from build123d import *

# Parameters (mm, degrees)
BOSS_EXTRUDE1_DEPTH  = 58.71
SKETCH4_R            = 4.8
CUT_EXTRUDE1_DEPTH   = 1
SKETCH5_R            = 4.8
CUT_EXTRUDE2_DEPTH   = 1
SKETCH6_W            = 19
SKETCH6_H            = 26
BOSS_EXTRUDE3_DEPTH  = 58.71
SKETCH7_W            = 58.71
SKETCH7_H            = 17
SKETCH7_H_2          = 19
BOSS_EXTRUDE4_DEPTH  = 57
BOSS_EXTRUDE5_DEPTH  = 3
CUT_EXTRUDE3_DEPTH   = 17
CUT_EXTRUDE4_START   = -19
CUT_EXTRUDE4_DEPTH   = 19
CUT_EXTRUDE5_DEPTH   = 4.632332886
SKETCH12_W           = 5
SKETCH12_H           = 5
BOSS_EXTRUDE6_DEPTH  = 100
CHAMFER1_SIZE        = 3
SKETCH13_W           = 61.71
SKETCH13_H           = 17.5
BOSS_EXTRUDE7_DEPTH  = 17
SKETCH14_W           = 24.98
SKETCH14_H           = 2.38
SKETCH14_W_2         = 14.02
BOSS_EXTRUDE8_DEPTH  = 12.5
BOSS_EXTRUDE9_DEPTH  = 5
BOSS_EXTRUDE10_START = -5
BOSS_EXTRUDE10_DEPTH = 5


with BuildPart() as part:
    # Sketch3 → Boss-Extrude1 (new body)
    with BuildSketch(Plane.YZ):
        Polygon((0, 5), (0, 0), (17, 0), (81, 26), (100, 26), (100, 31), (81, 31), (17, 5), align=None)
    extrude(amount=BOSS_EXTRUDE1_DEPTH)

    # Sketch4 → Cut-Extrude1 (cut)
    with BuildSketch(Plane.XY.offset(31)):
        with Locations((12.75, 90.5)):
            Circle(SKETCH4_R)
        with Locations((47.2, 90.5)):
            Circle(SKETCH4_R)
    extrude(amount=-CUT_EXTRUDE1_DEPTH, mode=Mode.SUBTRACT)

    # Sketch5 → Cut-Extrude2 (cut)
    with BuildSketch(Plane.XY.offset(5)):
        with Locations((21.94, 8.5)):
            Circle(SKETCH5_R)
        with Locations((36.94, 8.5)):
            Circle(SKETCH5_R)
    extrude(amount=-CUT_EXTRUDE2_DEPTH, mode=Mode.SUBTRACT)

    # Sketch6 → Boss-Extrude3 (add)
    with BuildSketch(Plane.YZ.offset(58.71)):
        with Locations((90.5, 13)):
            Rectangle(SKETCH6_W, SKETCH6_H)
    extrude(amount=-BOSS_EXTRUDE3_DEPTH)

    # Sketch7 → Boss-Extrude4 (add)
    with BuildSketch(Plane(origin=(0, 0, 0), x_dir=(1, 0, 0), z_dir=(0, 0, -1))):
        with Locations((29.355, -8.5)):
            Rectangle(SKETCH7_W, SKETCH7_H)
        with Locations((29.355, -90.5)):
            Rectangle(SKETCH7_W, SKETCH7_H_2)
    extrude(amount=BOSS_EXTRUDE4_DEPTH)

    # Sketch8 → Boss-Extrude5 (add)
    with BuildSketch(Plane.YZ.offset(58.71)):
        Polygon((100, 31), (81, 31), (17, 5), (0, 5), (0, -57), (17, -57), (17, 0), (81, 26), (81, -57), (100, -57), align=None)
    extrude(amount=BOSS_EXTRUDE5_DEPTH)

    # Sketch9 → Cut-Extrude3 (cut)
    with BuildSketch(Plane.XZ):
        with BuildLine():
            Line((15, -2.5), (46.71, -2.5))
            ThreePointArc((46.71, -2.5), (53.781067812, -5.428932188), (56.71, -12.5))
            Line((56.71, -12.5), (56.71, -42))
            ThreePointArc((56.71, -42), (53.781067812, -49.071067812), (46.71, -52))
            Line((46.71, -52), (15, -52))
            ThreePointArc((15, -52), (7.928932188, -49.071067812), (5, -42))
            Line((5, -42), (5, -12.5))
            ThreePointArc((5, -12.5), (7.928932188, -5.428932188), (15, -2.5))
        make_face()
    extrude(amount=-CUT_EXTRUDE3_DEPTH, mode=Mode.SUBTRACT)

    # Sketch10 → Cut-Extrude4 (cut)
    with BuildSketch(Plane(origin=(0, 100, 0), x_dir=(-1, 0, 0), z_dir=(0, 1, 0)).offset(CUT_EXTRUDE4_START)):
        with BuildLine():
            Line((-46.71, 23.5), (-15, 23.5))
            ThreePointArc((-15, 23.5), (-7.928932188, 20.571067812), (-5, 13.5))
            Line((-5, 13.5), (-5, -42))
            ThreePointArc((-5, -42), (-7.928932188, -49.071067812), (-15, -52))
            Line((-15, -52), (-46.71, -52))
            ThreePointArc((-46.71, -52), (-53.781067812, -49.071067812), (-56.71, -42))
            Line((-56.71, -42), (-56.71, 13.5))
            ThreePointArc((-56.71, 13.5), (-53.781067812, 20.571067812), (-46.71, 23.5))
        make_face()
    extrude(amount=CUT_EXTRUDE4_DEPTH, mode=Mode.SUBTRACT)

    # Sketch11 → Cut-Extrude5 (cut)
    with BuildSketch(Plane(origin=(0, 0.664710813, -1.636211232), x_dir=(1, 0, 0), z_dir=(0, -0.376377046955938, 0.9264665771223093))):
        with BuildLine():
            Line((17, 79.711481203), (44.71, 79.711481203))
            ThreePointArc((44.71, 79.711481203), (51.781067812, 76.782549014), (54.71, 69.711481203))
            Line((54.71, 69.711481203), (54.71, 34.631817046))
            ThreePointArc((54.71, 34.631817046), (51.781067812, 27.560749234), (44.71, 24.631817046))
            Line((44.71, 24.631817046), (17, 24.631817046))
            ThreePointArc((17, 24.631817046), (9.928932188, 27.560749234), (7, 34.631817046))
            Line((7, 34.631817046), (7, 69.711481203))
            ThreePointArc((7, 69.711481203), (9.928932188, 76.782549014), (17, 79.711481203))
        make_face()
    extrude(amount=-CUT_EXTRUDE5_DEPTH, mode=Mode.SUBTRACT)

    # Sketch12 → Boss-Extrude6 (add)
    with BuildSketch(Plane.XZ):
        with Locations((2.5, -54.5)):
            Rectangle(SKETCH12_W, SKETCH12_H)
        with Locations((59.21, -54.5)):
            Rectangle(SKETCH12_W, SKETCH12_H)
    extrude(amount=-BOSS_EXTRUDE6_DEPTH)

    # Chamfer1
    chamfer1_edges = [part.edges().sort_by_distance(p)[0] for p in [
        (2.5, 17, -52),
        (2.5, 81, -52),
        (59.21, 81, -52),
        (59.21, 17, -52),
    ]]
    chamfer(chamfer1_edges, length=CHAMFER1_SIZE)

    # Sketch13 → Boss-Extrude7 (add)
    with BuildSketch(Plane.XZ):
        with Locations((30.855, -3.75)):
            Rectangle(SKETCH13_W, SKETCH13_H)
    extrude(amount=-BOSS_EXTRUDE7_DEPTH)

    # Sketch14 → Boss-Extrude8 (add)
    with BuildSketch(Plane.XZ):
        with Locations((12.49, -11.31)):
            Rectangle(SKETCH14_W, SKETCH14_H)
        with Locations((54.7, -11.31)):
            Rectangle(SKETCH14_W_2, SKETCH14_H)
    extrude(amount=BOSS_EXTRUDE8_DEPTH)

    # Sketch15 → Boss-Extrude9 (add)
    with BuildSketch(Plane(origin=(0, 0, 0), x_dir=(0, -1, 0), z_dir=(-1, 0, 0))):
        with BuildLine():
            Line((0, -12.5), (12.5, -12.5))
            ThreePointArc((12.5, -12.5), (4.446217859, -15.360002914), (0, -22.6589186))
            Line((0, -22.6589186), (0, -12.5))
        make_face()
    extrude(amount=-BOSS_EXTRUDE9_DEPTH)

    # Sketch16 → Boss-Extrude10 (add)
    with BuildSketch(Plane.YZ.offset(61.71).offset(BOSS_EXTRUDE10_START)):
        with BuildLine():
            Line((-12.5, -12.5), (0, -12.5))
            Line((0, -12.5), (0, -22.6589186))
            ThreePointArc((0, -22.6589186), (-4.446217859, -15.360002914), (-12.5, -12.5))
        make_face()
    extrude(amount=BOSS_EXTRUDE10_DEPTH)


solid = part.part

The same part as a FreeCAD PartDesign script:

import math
import FreeCAD as App
import Part
import Sketcher

V = App.Vector


def edges_at(feature, points):
    """Names of the edges that pass closest to the given points."""
    edges = feature.Shape.Edges
    near = lambda p: min(range(len(edges)), key=lambda i: edges[i].distToShape(Part.Vertex(*p))[0])
    return sorted({f"Edge{near(p) + 1}" for p in points})

doc = App.newDocument("Part")
body = doc.addObject("PartDesign::Body", "Body")

sketch1 = body.newObject("Sketcher::SketchObject", "Sketch")
sketch1.AttachmentSupport = (doc.getObject("YZ_Plane"), [""])
sketch1.MapMode = "FlatFace"
sketch1.addGeometry([
    Part.LineSegment(V(0, 5, 0), V(0, 0, 0)),
    Part.LineSegment(V(0, 0, 0), V(17, 0, 0)),
    Part.LineSegment(V(17, 0, 0), V(81, 26, 0)),
    Part.LineSegment(V(81, 26, 0), V(100, 26, 0)),
    Part.LineSegment(V(100, 26, 0), V(100, 31, 0)),
    Part.LineSegment(V(100, 31, 0), V(81, 31, 0)),
    Part.LineSegment(V(81, 31, 0), V(17, 5, 0)),
    Part.LineSegment(V(17, 5, 0), V(0, 5, 0)),
], False)
sketch1.addConstraint([
    Sketcher.Constraint("Coincident", 0, 2, 1, 1),
    Sketcher.Constraint("Coincident", 1, 2, 2, 1),
    Sketcher.Constraint("Coincident", 2, 2, 3, 1),
    Sketcher.Constraint("Coincident", 3, 2, 4, 1),
    Sketcher.Constraint("Coincident", 4, 2, 5, 1),
    Sketcher.Constraint("Coincident", 5, 2, 6, 1),
    Sketcher.Constraint("Coincident", 6, 2, 7, 1),
    Sketcher.Constraint("Coincident", 7, 2, 0, 1),
    Sketcher.Constraint("Vertical", 0),
    Sketcher.Constraint("Horizontal", 1),
    Sketcher.Constraint("Horizontal", 3),
    Sketcher.Constraint("Vertical", 4),
    Sketcher.Constraint("Horizontal", 5),
    Sketcher.Constraint("Horizontal", 7),
    Sketcher.Constraint("Coincident", 0, 2, -1, 1),
    Sketcher.Constraint("Parallel", 2, 6),
    Sketcher.Constraint("Vertical", 2, 2, 5, 2),
    Sketcher.Constraint("Vertical", 1, 2, 6, 2),
    Sketcher.Constraint("DistanceX", 1, 1, 1, 2, 17.0),
    Sketcher.Constraint("DistanceX", 3, 1, 3, 2, 19.0),
    Sketcher.Constraint("DistanceY", 0, 2, 0, 1, 5.0),
    Sketcher.Constraint("DistanceX", -1, 1, 2, 2, 81.0),
    Sketcher.Constraint("DistanceY", -1, 1, 2, 2, 26.0),
])
pad1 = body.newObject("PartDesign::Pad", "Pad")
pad1.Profile = sketch1
pad1.Length = 58.71

sketch2 = body.newObject("Sketcher::SketchObject", "Sketch001")
sketch2.AttachmentSupport = (doc.getObject("XY_Plane"), [""])
sketch2.MapMode = "FlatFace"
sketch2.AttachmentOffset = App.Placement(V(0, 0, 31), App.Rotation())
sketch2.addGeometry([
    Part.Circle(V(12.8, 90.5, 0), V(0, 0, 1), 4.8),
    Part.Circle(V(47.2, 90.5, 0), V(0, 0, 1), 4.8),
], False)
sketch2.addConstraint([
    Sketcher.Constraint("Equal", 0, 1),
    Sketcher.Constraint("Horizontal", 0, 3, 1, 3),
    Sketcher.Constraint("Diameter", 0, 9.6),
    Sketcher.Constraint("DistanceY", -1, 1, 0, 3, 90.5),
    Sketcher.Constraint("DistanceX", -1, 1, 1, 3, 47.2),
    Sketcher.Constraint("DistanceX", -1, 1, 0, 3, 12.75),
])
pocket1 = body.newObject("PartDesign::Pocket", "Pocket")
pocket1.Profile = sketch2
pocket1.Length = 1

sketch3 = body.newObject("Sketcher::SketchObject", "Sketch002")
sketch3.AttachmentSupport = (doc.getObject("XY_Plane"), [""])
sketch3.MapMode = "FlatFace"
sketch3.AttachmentOffset = App.Placement(V(0, 0, 5), App.Rotation())
sketch3.addGeometry([
    Part.Circle(V(21.9, 8.5, 0), V(0, 0, 1), 4.8),
    Part.Circle(V(36.9, 8.5, 0), V(0, 0, 1), 4.8),
], False)
sketch3.addConstraint([
    Sketcher.Constraint("Equal", 0, 1),
    Sketcher.Constraint("Horizontal", 0, 3, 1, 3),
    Sketcher.Constraint("Diameter", 0, 9.6),
    Sketcher.Constraint("DistanceX", 0, 3, 1, 3, 15.0),
    Sketcher.Constraint("DistanceY", -1, 1, 0, 3, 8.5),
    Sketcher.Constraint("DistanceX", -1, 1, 0, 3, 21.94),
])
pocket2 = body.newObject("PartDesign::Pocket", "Pocket001")
pocket2.Profile = sketch3
pocket2.Length = 1

sketch4 = body.newObject("Sketcher::SketchObject", "Sketch003")
sketch4.AttachmentSupport = (doc.getObject("YZ_Plane"), [""])
sketch4.MapMode = "FlatFace"
sketch4.AttachmentOffset = App.Placement(V(0, 0, 58.71), App.Rotation())
sketch4.addGeometry([
    Part.LineSegment(V(81, 26, 0), V(81, 0, 0)),
    Part.LineSegment(V(81, 0, 0), V(100, 0, 0)),
    Part.LineSegment(V(100, 0, 0), V(100, 26, 0)),
    Part.LineSegment(V(100, 26, 0), V(81, 26, 0)),
], False)
sketch4.addConstraint([
    Sketcher.Constraint("Coincident", 0, 2, 1, 1),
    Sketcher.Constraint("Coincident", 1, 2, 2, 1),
    Sketcher.Constraint("Coincident", 2, 2, 3, 1),
    Sketcher.Constraint("Coincident", 3, 2, 0, 1),
    Sketcher.Constraint("Vertical", 0),
    Sketcher.Constraint("Horizontal", 1),
    Sketcher.Constraint("Vertical", 2),
    Sketcher.Constraint("Horizontal", 3),
    Sketcher.Constraint("PointOnObject", 0, 2, -1),
    Sketcher.Constraint("DistanceX", 1, 1, 1, 2, 19.0),
    Sketcher.Constraint("DistanceY", 0, 2, 0, 1, 26.0),
    Sketcher.Constraint("DistanceX", -1, 1, 0, 2, 81.0),
])
pad2 = body.newObject("PartDesign::Pad", "Pad001")
pad2.Profile = sketch4
pad2.Length = 58.71
pad2.Reversed = True

sketch5 = body.newObject("Sketcher::SketchObject", "Sketch004")
sketch5.AttachmentSupport = (doc.getObject("XY_Plane"), [""])
sketch5.MapMode = "FlatFace"
sketch5.addGeometry([
    Part.LineSegment(V(0, 0, 0), V(0, 17, 0)),
    Part.LineSegment(V(0, 17, 0), V(59, 17, 0)),
    Part.LineSegment(V(59, 17, 0), V(59, 0, 0)),
    Part.LineSegment(V(59, 0, 0), V(0, 0, 0)),
    Part.LineSegment(V(0, 81, 0), V(0, 100, 0)),
    Part.LineSegment(V(0, 100, 0), V(59, 100, 0)),
    Part.LineSegment(V(59, 100, 0), V(59, 81, 0)),
    Part.LineSegment(V(59, 81, 0), V(0, 81, 0)),
], False)
sketch5.addConstraint([
    Sketcher.Constraint("Coincident", 0, 2, 1, 1),
    Sketcher.Constraint("Coincident", 1, 2, 2, 1),
    Sketcher.Constraint("Coincident", 2, 2, 3, 1),
    Sketcher.Constraint("Coincident", 3, 2, 0, 1),
    Sketcher.Constraint("Coincident", 4, 2, 5, 1),
    Sketcher.Constraint("Coincident", 5, 2, 6, 1),
    Sketcher.Constraint("Coincident", 6, 2, 7, 1),
    Sketcher.Constraint("Coincident", 7, 2, 4, 1),
    Sketcher.Constraint("Vertical", 0),
    Sketcher.Constraint("Horizontal", 1),
    Sketcher.Constraint("Vertical", 2),
    Sketcher.Constraint("Horizontal", 3),
    Sketcher.Constraint("Vertical", 4),
    Sketcher.Constraint("Horizontal", 5),
    Sketcher.Constraint("Vertical", 6),
    Sketcher.Constraint("Horizontal", 7),
    Sketcher.Constraint("Coincident", 3, 2, -1, 1),
    Sketcher.Constraint("PointOnObject", 4, 2, -2),
    Sketcher.Constraint("Vertical", 2, 2, 5, 2),
    Sketcher.Constraint("DistanceY", 0, 1, 0, 2, 17.0),
    Sketcher.Constraint("DistanceY", 4, 1, 4, 2, 19.0),
    Sketcher.Constraint("DistanceY", -1, 1, 4, 2, 100.0),
    Sketcher.Constraint("DistanceX", 1, 1, 1, 2, 58.71),
])
pad3 = body.newObject("PartDesign::Pad", "Pad002")
pad3.Profile = sketch5
pad3.Length = 57
pad3.Reversed = True

sketch6 = body.newObject("Sketcher::SketchObject", "Sketch005")
sketch6.AttachmentSupport = (doc.getObject("YZ_Plane"), [""])
sketch6.MapMode = "FlatFace"
sketch6.AttachmentOffset = App.Placement(V(0, 0, 58.71), App.Rotation())
sketch6.addGeometry([
    Part.LineSegment(V(100, 31, 0), V(81, 31, 0)),
    Part.LineSegment(V(81, 31, 0), V(17, 5, 0)),
    Part.LineSegment(V(17, 5, 0), V(0, 5, 0)),
    Part.LineSegment(V(0, 5, 0), V(0, -57, 0)),
    Part.LineSegment(V(0, -57, 0), V(17, -57, 0)),
    Part.LineSegment(V(17, -57, 0), V(17, 0, 0)),
    Part.LineSegment(V(17, 0, 0), V(81, 26, 0)),
    Part.LineSegment(V(81, 26, 0), V(81, -57, 0)),
    Part.LineSegment(V(81, -57, 0), V(100, -57, 0)),
    Part.LineSegment(V(100, -57, 0), V(100, 31, 0)),
], False)
sketch6.addConstraint([
    Sketcher.Constraint("Coincident", 0, 2, 1, 1),
    Sketcher.Constraint("Coincident", 1, 2, 2, 1),
    Sketcher.Constraint("Coincident", 2, 2, 3, 1),
    Sketcher.Constraint("Coincident", 3, 2, 4, 1),
    Sketcher.Constraint("Coincident", 4, 2, 5, 1),
    Sketcher.Constraint("Coincident", 5, 2, 6, 1),
    Sketcher.Constraint("Coincident", 6, 2, 7, 1),
    Sketcher.Constraint("Coincident", 7, 2, 8, 1),
    Sketcher.Constraint("Coincident", 8, 2, 9, 1),
    Sketcher.Constraint("Coincident", 9, 2, 0, 1),
    Sketcher.Constraint("Horizontal", 0),
    Sketcher.Constraint("Horizontal", 2),
    Sketcher.Constraint("Vertical", 3),
    Sketcher.Constraint("Horizontal", 4),
    Sketcher.Constraint("Vertical", 5),
    Sketcher.Constraint("Vertical", 7),
    Sketcher.Constraint("Horizontal", 8),
    Sketcher.Constraint("Vertical", 9),
    Sketcher.Constraint("PointOnObject", 2, 2, -2),
    Sketcher.Constraint("PointOnObject", 5, 2, -1),
    Sketcher.Constraint("Parallel", 1, 6),
    Sketcher.Constraint("Horizontal", 4, 2, 7, 2),
    Sketcher.Constraint("Vertical", 1, 2, 4, 2),
    Sketcher.Constraint("Vertical", 0, 2, 6, 2),
    Sketcher.Constraint("DistanceX", 0, 2, 0, 1, 19.0),
    Sketcher.Constraint("DistanceX", 2, 2, 2, 1, 17.0),
    Sketcher.Constraint("DistanceY", 3, 2, 3, 1, 62.0),
    Sketcher.Constraint("DistanceY", 5, 1, 5, 2, 57.0),
    Sketcher.Constraint("DistanceY", 7, 2, 7, 1, 83.0),
    Sketcher.Constraint("DistanceX", -1, 1, 0, 2, 81.0),
])
pad4 = body.newObject("PartDesign::Pad", "Pad003")
pad4.Profile = sketch6
pad4.Length = 3

sketch7 = body.newObject("Sketcher::SketchObject", "Sketch006")
sketch7.AttachmentSupport = (doc.getObject("XZ_Plane"), [""])
sketch7.MapMode = "FlatFace"
sketch7.addGeometry([
    Part.LineSegment(V(47, -2, 0), V(15, -2, 0)),
    Part.ArcOfCircle(Part.Circle(V(15, -12, 0), V(0, 0, 1), 10), math.radians(90), math.radians(180)),
    Part.LineSegment(V(5, -12, 0), V(5, -42, 0)),
    Part.ArcOfCircle(Part.Circle(V(15, -42, 0), V(0, 0, 1), 10), math.radians(180), math.radians(270)),
    Part.LineSegment(V(15, -52, 0), V(47, -52, 0)),
    Part.ArcOfCircle(Part.Circle(V(47, -42, 0), V(0, 0, 1), 10), math.radians(-90), math.radians(0)),
    Part.LineSegment(V(57, -42, 0), V(57, -12, 0)),
    Part.ArcOfCircle(Part.Circle(V(47, -12, 0), V(0, 0, 1), 10), math.radians(0), math.radians(90)),
], False)
sketch7.addConstraint([
    Sketcher.Constraint("Tangent", 0, 2, 1, 1),
    Sketcher.Constraint("Tangent", 1, 2, 2, 1),
    Sketcher.Constraint("Tangent", 2, 2, 3, 1),
    Sketcher.Constraint("Tangent", 3, 2, 4, 1),
    Sketcher.Constraint("Tangent", 4, 2, 5, 1),
    Sketcher.Constraint("Tangent", 5, 2, 6, 1),
    Sketcher.Constraint("Tangent", 6, 2, 7, 1),
    Sketcher.Constraint("Tangent", 7, 2, 0, 1),
    Sketcher.Constraint("Horizontal", 0),
    Sketcher.Constraint("Vertical", 2),
    Sketcher.Constraint("Horizontal", 4),
    Sketcher.Constraint("Vertical", 6),
    Sketcher.Constraint("Equal", 1, 3),
    Sketcher.Constraint("Equal", 3, 5),
    Sketcher.Constraint("Equal", 5, 7),
    Sketcher.Constraint("Radius", 1, 10.0),
    Sketcher.Constraint("DistanceY", 2, 2, 2, 1, 29.5),
    Sketcher.Constraint("DistanceX", -1, 1, 1, 3, 15.0),
    Sketcher.Constraint("DistanceY", 3, 3, -1, 1, 42.0),
    Sketcher.Constraint("DistanceX", 0, 2, 0, 1, 31.71),
])
pocket3 = body.newObject("PartDesign::Pocket", "Pocket002")
pocket3.Profile = sketch7
pocket3.Length = 17

sketch8 = body.newObject("Sketcher::SketchObject", "Sketch007")
sketch8.AttachmentSupport = (doc.getObject("XZ_Plane"), [""])
sketch8.MapMode = "FlatFace"
sketch8.AttachmentOffset = App.Placement(V(0, 0, -81), App.Rotation())
sketch8.addGeometry([
    Part.LineSegment(V(15, 24, 0), V(47, 24, 0)),
    Part.ArcOfCircle(Part.Circle(V(47, 14, 0), V(0, 0, 1), 10), math.radians(0), math.radians(90)),
    Part.LineSegment(V(57, 14, 0), V(57, -42, 0)),
    Part.ArcOfCircle(Part.Circle(V(47, -42, 0), V(0, 0, 1), 10), math.radians(-90), math.radians(0)),
    Part.LineSegment(V(47, -52, 0), V(15, -52, 0)),
    Part.ArcOfCircle(Part.Circle(V(15, -42, 0), V(0, 0, 1), 10), math.radians(180), math.radians(270)),
    Part.LineSegment(V(5, -42, 0), V(5, 14, 0)),
    Part.ArcOfCircle(Part.Circle(V(15, 14, 0), V(0, 0, 1), 10), math.radians(90), math.radians(180)),
], False)
sketch8.addConstraint([
    Sketcher.Constraint("Tangent", 0, 2, 1, 2),
    Sketcher.Constraint("Tangent", 1, 1, 2, 1),
    Sketcher.Constraint("Tangent", 2, 2, 3, 2),
    Sketcher.Constraint("Tangent", 3, 1, 4, 1),
    Sketcher.Constraint("Tangent", 4, 2, 5, 2),
    Sketcher.Constraint("Tangent", 5, 1, 6, 1),
    Sketcher.Constraint("Tangent", 6, 2, 7, 2),
    Sketcher.Constraint("Tangent", 7, 1, 0, 1),
    Sketcher.Constraint("Horizontal", 0),
    Sketcher.Constraint("Vertical", 2),
    Sketcher.Constraint("Horizontal", 4),
    Sketcher.Constraint("Vertical", 6),
    Sketcher.Constraint("Equal", 1, 3),
    Sketcher.Constraint("Equal", 3, 5),
    Sketcher.Constraint("Equal", 5, 7),
    Sketcher.Constraint("Radius", 1, 10.0),
    Sketcher.Constraint("DistanceY", 2, 2, 2, 1, 55.5),
    Sketcher.Constraint("DistanceY", 3, 3, -1, 1, 42.0),
    Sketcher.Constraint("DistanceX", -1, 1, 5, 3, 15.0),
    Sketcher.Constraint("DistanceX", 0, 1, 0, 2, 31.71),
])
pocket4 = body.newObject("PartDesign::Pocket", "Pocket003")
pocket4.Profile = sketch8
pocket4.Length = 19

sketch9 = body.newObject("Sketcher::SketchObject", "Sketch008")
sketch9.Placement = App.Placement(V(0, 0.664711, -1.636211), App.Rotation(V(1, 0, 0), V(0, 0.926466577, 0.376377047), V(0, -0.376377047, 0.926466577), "ZXY"))
sketch9.addGeometry([
    Part.LineSegment(V(45, 80, 0), V(17, 80, 0)),
    Part.ArcOfCircle(Part.Circle(V(17, 70, 0), V(0, 0, 1), 10), math.radians(90), math.radians(180)),
    Part.LineSegment(V(7, 70, 0), V(7, 35, 0)),
    Part.ArcOfCircle(Part.Circle(V(17, 35, 0), V(0, 0, 1), 10), math.radians(180), math.radians(270)),
    Part.LineSegment(V(17, 25, 0), V(45, 25, 0)),
    Part.ArcOfCircle(Part.Circle(V(45, 35, 0), V(0, 0, 1), 10), math.radians(-90), math.radians(0)),
    Part.LineSegment(V(55, 35, 0), V(55, 70, 0)),
    Part.ArcOfCircle(Part.Circle(V(45, 70, 0), V(0, 0, 1), 10), math.radians(0), math.radians(90)),
], False)
sketch9.addConstraint([
    Sketcher.Constraint("Tangent", 0, 2, 1, 1),
    Sketcher.Constraint("Tangent", 1, 2, 2, 1),
    Sketcher.Constraint("Tangent", 2, 2, 3, 1),
    Sketcher.Constraint("Tangent", 3, 2, 4, 1),
    Sketcher.Constraint("Tangent", 4, 2, 5, 1),
    Sketcher.Constraint("Tangent", 5, 2, 6, 1),
    Sketcher.Constraint("Tangent", 6, 2, 7, 1),
    Sketcher.Constraint("Tangent", 7, 2, 0, 1),
    Sketcher.Constraint("Horizontal", 0),
    Sketcher.Constraint("Vertical", 2),
    Sketcher.Constraint("Horizontal", 4),
    Sketcher.Constraint("Vertical", 6),
    Sketcher.Constraint("Equal", 1, 3),
    Sketcher.Constraint("Equal", 3, 5),
    Sketcher.Constraint("Equal", 5, 7),
    Sketcher.Constraint("Radius", 1, 10.0),
    Sketcher.Constraint("DistanceX", -1, 1, 1, 3, 17.0),
    Sketcher.Constraint("DistanceX", 0, 2, 0, 1, 27.71),
    Sketcher.Constraint("DistanceY", 2, 2, 2, 1, 35.079664),
    Sketcher.Constraint("DistanceY", -1, 1, 1, 3, 69.711481),
])
pocket5 = body.newObject("PartDesign::Pocket", "Pocket004")
pocket5.Profile = sketch9
pocket5.Length = 4.632333

sketch10 = body.newObject("Sketcher::SketchObject", "Sketch009")
sketch10.AttachmentSupport = (doc.getObject("XZ_Plane"), [""])
sketch10.MapMode = "FlatFace"
sketch10.addGeometry([
    Part.LineSegment(V(0, -52, 0), V(0, -57, 0)),
    Part.LineSegment(V(0, -57, 0), V(5, -57, 0)),
    Part.LineSegment(V(5, -57, 0), V(5, -52, 0)),
    Part.LineSegment(V(5, -52, 0), V(0, -52, 0)),
    Part.LineSegment(V(57, -52, 0), V(57, -57, 0)),
    Part.LineSegment(V(57, -57, 0), V(62, -57, 0)),
    Part.LineSegment(V(62, -57, 0), V(62, -52, 0)),
    Part.LineSegment(V(62, -52, 0), V(57, -52, 0)),
], False)
sketch10.addConstraint([
    Sketcher.Constraint("Coincident", 0, 2, 1, 1),
    Sketcher.Constraint("Coincident", 1, 2, 2, 1),
    Sketcher.Constraint("Coincident", 2, 2, 3, 1),
    Sketcher.Constraint("Coincident", 3, 2, 0, 1),
    Sketcher.Constraint("Coincident", 4, 2, 5, 1),
    Sketcher.Constraint("Coincident", 5, 2, 6, 1),
    Sketcher.Constraint("Coincident", 6, 2, 7, 1),
    Sketcher.Constraint("Coincident", 7, 2, 4, 1),
    Sketcher.Constraint("Vertical", 0),
    Sketcher.Constraint("Horizontal", 1),
    Sketcher.Constraint("Vertical", 2),
    Sketcher.Constraint("Horizontal", 3),
    Sketcher.Constraint("Vertical", 4),
    Sketcher.Constraint("Horizontal", 5),
    Sketcher.Constraint("Vertical", 6),
    Sketcher.Constraint("Horizontal", 7),
    Sketcher.Constraint("PointOnObject", 0, 2, -2),
    Sketcher.Constraint("Horizontal", 1, 2, 4, 2),
    Sketcher.Constraint("Horizontal", 3, 2, 6, 2),
    Sketcher.Constraint("Equal", 3, 5),
    Sketcher.Constraint("Equal", 7, 0),
    Sketcher.Constraint("DistanceX", 1, 1, 1, 2, 5.0),
    Sketcher.Constraint("DistanceY", 0, 2, -1, 1, 57.0),
    Sketcher.Constraint("DistanceX", -1, 1, 4, 2, 56.71),
])
pad5 = body.newObject("PartDesign::Pad", "Pad004")
pad5.Profile = sketch10
pad5.Length = 100
pad5.Reversed = True
doc.recompute()

chamfer = body.newObject("PartDesign::Chamfer", "Chamfer")
chamfer.Base = (pad5, edges_at(pad5, [
    (2.5, 17, -52),
    (2.5, 81, -52),
    (59.21, 81, -52),
    (59.21, 17, -52),
]))
chamfer.Size = 3

sketch11 = body.newObject("Sketcher::SketchObject", "Sketch010")
sketch11.AttachmentSupport = (doc.getObject("XZ_Plane"), [""])
sketch11.MapMode = "FlatFace"
sketch11.addGeometry([
    Part.LineSegment(V(0, 5, 0), V(0, -12, 0)),
    Part.LineSegment(V(0, -12, 0), V(62, -12, 0)),
    Part.LineSegment(V(62, -12, 0), V(62, 5, 0)),
    Part.LineSegment(V(62, 5, 0), V(0, 5, 0)),
], False)
sketch11.addConstraint([
    Sketcher.Constraint("Coincident", 0, 2, 1, 1),
    Sketcher.Constraint("Coincident", 1, 2, 2, 1),
    Sketcher.Constraint("Coincident", 2, 2, 3, 1),
    Sketcher.Constraint("Coincident", 3, 2, 0, 1),
    Sketcher.Constraint("Vertical", 0),
    Sketcher.Constraint("Horizontal", 1),
    Sketcher.Constraint("Vertical", 2),
    Sketcher.Constraint("Horizontal", 3),
    Sketcher.Constraint("PointOnObject", 0, 2, -2),
    Sketcher.Constraint("DistanceY", 0, 2, 0, 1, 17.5),
    Sketcher.Constraint("DistanceY", -1, 1, 2, 2, 5.0),
    Sketcher.Constraint("DistanceX", 1, 1, 1, 2, 61.71),
])
pad6 = body.newObject("PartDesign::Pad", "Pad005")
pad6.Profile = sketch11
pad6.Length = 17
pad6.Reversed = True

sketch12 = body.newObject("Sketcher::SketchObject", "Sketch011")
sketch12.AttachmentSupport = (doc.getObject("XZ_Plane"), [""])
sketch12.MapMode = "FlatFace"
sketch12.addGeometry([
    Part.LineSegment(V(0, -10.1, 0), V(0, -12.5, 0)),
    Part.LineSegment(V(0, -12.5, 0), V(25, -12.5, 0)),
    Part.LineSegment(V(25, -12.5, 0), V(25, -10.1, 0)),
    Part.LineSegment(V(25, -10.1, 0), V(0, -10.1, 0)),
    Part.LineSegment(V(47.7, -10.1, 0), V(47.7, -12.5, 0)),
    Part.LineSegment(V(47.7, -12.5, 0), V(61.7, -12.5, 0)),
    Part.LineSegment(V(61.7, -12.5, 0), V(61.7, -10.1, 0)),
    Part.LineSegment(V(61.7, -10.1, 0), V(47.7, -10.1, 0)),
], False)
sketch12.addConstraint([
    Sketcher.Constraint("Coincident", 0, 2, 1, 1),
    Sketcher.Constraint("Coincident", 1, 2, 2, 1),
    Sketcher.Constraint("Coincident", 2, 2, 3, 1),
    Sketcher.Constraint("Coincident", 3, 2, 0, 1),
    Sketcher.Constraint("Coincident", 4, 2, 5, 1),
    Sketcher.Constraint("Coincident", 5, 2, 6, 1),
    Sketcher.Constraint("Coincident", 6, 2, 7, 1),
    Sketcher.Constraint("Coincident", 7, 2, 4, 1),
    Sketcher.Constraint("Vertical", 0),
    Sketcher.Constraint("Horizontal", 1),
    Sketcher.Constraint("Vertical", 2),
    Sketcher.Constraint("Horizontal", 3),
    Sketcher.Constraint("Vertical", 4),
    Sketcher.Constraint("Horizontal", 5),
    Sketcher.Constraint("Vertical", 6),
    Sketcher.Constraint("Horizontal", 7),
    Sketcher.Constraint("PointOnObject", 0, 2, -2),
    Sketcher.Constraint("Horizontal", 1, 2, 4, 2),
    Sketcher.Constraint("Horizontal", 3, 2, 6, 2),
    Sketcher.Constraint("DistanceX", 1, 1, 1, 2, 24.98),
    Sketcher.Constraint("DistanceX", 5, 1, 5, 2, 14.02),
    Sketcher.Constraint("DistanceY", 0, 2, 0, 1, 2.38),
    Sketcher.Constraint("DistanceY", 0, 2, -1, 1, 12.5),
    Sketcher.Constraint("DistanceX", -1, 1, 4, 2, 47.69),
])
pad7 = body.newObject("PartDesign::Pad", "Pad006")
pad7.Profile = sketch12
pad7.Length = 12.5

sketch13 = body.newObject("Sketcher::SketchObject", "Sketch012")
sketch13.AttachmentSupport = (doc.getObject("YZ_Plane"), [""])
sketch13.MapMode = "FlatFace"
sketch13.addGeometry([
    Part.LineSegment(V(-12, -12, 0), V(0, -12, 0)),
    Part.LineSegment(V(0, -12, 0), V(0, -23, 0)),
    Part.ArcOfCircle(Part.Circle(V(-13, -25, 0), V(0, 0, 1), 13), math.radians(12), math.radians(90)),
], False)
sketch13.addConstraint([
    Sketcher.Constraint("Coincident", 0, 2, 1, 1),
    Sketcher.Constraint("Coincident", 1, 2, 2, 1),
    Sketcher.Constraint("Tangent", 2, 2, 0, 1),
    Sketcher.Constraint("Horizontal", 0),
    Sketcher.Constraint("Vertical", 1),
    Sketcher.Constraint("PointOnObject", 0, 2, -2),
    Sketcher.Constraint("DistanceX", 0, 1, 0, 2, 12.5),
    Sketcher.Constraint("DistanceY", 0, 2, -1, 1, 12.5),
    Sketcher.Constraint("Radius", 2, 12.769746),
])
pad8 = body.newObject("PartDesign::Pad", "Pad007")
pad8.Profile = sketch13
pad8.Length = 5

sketch14 = body.newObject("Sketcher::SketchObject", "Sketch013")
sketch14.AttachmentSupport = (doc.getObject("YZ_Plane"), [""])
sketch14.MapMode = "FlatFace"
sketch14.AttachmentOffset = App.Placement(V(0, 0, 56.71), App.Rotation())
sketch14.addGeometry([
    Part.LineSegment(V(0, -12, 0), V(-12, -12, 0)),
    Part.ArcOfCircle(Part.Circle(V(-13, -25, 0), V(0, 0, 1), 13), math.radians(12), math.radians(90)),
    Part.LineSegment(V(0, -23, 0), V(0, -12, 0)),
], False)
sketch14.addConstraint([
    Sketcher.Constraint("Tangent", 0, 2, 1, 2),
    Sketcher.Constraint("Coincident", 1, 1, 2, 1),
    Sketcher.Constraint("Coincident", 2, 2, 0, 1),
    Sketcher.Constraint("Horizontal", 0),
    Sketcher.Constraint("Vertical", 2),
    Sketcher.Constraint("PointOnObject", 1, 1, -2),
    Sketcher.Constraint("DistanceX", 0, 2, 0, 1, 12.5),
    Sketcher.Constraint("DistanceY", 0, 2, -1, 1, 12.5),
    Sketcher.Constraint("Radius", 1, 12.769746),
])
pad9 = body.newObject("PartDesign::Pad", "Pad008")
pad9.Profile = sketch14
pad9.Length = 5

doc.recompute()
